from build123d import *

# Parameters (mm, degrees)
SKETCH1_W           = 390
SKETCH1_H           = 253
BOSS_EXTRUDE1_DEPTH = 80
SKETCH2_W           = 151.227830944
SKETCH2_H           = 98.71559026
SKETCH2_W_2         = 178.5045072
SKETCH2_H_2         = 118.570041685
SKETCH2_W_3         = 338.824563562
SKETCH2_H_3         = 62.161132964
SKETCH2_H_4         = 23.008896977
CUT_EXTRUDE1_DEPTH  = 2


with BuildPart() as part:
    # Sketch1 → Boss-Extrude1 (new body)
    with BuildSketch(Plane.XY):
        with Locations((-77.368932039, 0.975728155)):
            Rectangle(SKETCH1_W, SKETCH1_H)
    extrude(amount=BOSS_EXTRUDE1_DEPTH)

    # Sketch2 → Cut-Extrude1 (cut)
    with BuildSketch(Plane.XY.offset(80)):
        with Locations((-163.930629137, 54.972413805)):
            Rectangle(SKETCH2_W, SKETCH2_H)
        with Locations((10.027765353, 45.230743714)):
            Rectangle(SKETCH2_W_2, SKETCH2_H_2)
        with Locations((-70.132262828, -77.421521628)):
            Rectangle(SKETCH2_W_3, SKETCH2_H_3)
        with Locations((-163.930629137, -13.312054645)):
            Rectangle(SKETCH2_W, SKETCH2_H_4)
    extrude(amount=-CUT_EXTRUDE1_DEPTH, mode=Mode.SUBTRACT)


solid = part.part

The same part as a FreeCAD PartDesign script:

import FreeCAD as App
import Part
import Sketcher
Q = App.Units.Quantity

doc = App.newDocument("Part")
params = doc.addObject("Spreadsheet::Sheet", "Params")
for row, (alias, value) in enumerate([
    ("sketch1_width", "390 mm"),
    ("sketch1_height", "253 mm"),
    ("pad1_length", "80 mm"),
    ("pocket1_length", "2 mm"),
], start=1):
    params.set(f"A{row}", alias)
    params.set(f"B{row}", "=" + value)
    params.setAlias(f"B{row}", alias)

body = doc.addObject("PartDesign::Body", "Body")

# Sketch on XY plane
sketch1 = body.newObject("Sketcher::SketchObject", "Sketch")
sketch1.AttachmentSupport = (doc.getObject("XY_Plane"), [""])
sketch1.MapMode = "FlatFace"
sketch1.addGeometry([
    Part.LineSegment(App.Vector(-272, 127, 0), App.Vector(-272, -126, 0)),
    Part.LineSegment(App.Vector(-272, -126, 0), App.Vector(118, -126, 0)),
    Part.LineSegment(App.Vector(118, -126, 0), App.Vector(118, 127, 0)),
    Part.LineSegment(App.Vector(118, 127, 0), App.Vector(-272, 127, 0)),
], False)
sketch1.addConstraint([
    Sketcher.Constraint("Coincident", 0, 2, 1, 1),
    Sketcher.Constraint("Coincident", 1, 2, 2, 1),
    Sketcher.Constraint("Coincident", 2, 2, 3, 1),
    Sketcher.Constraint("Coincident", 3, 2, 0, 1),
    Sketcher.Constraint("Vertical", 0),
    Sketcher.Constraint("Horizontal", 1),
    Sketcher.Constraint("Vertical", 2),
    Sketcher.Constraint("Horizontal", 3),
    Sketcher.Constraint("DistanceX", 1, 1, 1, 2, Q("390 mm")),
    Sketcher.Constraint("DistanceY", 0, 2, 0, 1, Q("253 mm")),
    Sketcher.Constraint("DistanceY", 0, 2, -1, 1, Q("125.524272 mm")),
    Sketcher.Constraint("DistanceX", 0, 2, -1, 1, Q("272.368932 mm")),
])
sketch1.setExpression("Constraints[8]", "Params.sketch1_width")
sketch1.setExpression("Constraints[9]", "Params.sketch1_height")
pad1 = body.newObject("PartDesign::Pad", "Pad")
pad1.Profile = sketch1
pad1.setExpression("Length", "Params.pad1_length")

# Sketch on XY plane
sketch2 = body.newObject("Sketcher::SketchObject", "Sketch001")
sketch2.AttachmentSupport = (doc.getObject("XY_Plane"), [""])
sketch2.MapMode = "FlatFace"
sketch2.AttachmentOffset = App.Placement(App.Vector(0, 0, 80), App.Rotation())
sketch2.addGeometry([
    Part.LineSegment(App.Vector(-240, 104, 0), App.Vector(-240, 6, 0)),  # 0
    Part.LineSegment(App.Vector(-240, 6, 0), App.Vector(-88, 6, 0)),  # 1
    Part.LineSegment(App.Vector(-88, 6, 0), App.Vector(-88, 104, 0)),  # 2
    Part.LineSegment(App.Vector(-88, 104, 0), App.Vector(-240, 104, 0)),  # 3
    Part.LineSegment(App.Vector(-79, 105, 0), App.Vector(-79, -14, 0)),  # 4
    Part.LineSegment(App.Vector(-79, -14, 0), App.Vector(99, -14, 0)),  # 5
    Part.LineSegment(App.Vector(99, -14, 0), App.Vector(99, 105, 0)),  # 6
    Part.LineSegment(App.Vector(99, 105, 0), App.Vector(-79, 105, 0)),  # 7
    Part.LineSegment(App.Vector(-240, -46, 0), App.Vector(-240, -109, 0)),  # 8
    Part.LineSegment(App.Vector(-240, -109, 0), App.Vector(99, -109, 0)),  # 9
    Part.LineSegment(App.Vector(99, -109, 0), App.Vector(99, -46, 0)),  # 10
    Part.LineSegment(App.Vector(99, -46, 0), App.Vector(-240, -46, 0)),  # 11
    Part.LineSegment(App.Vector(-240, -2, 0), App.Vector(-240, -25, 0)),  # 12
    Part.LineSegment(App.Vector(-240, -25, 0), App.Vector(-88, -25, 0)),  # 13
    Part.LineSegment(App.Vector(-88, -25, 0), App.Vector(-88, -2, 0)),  # 14
    Part.LineSegment(App.Vector(-88, -2, 0), App.Vector(-240, -2, 0)),  # 15
], False)
sketch2.addConstraint([
    Sketcher.Constraint("Coincident", 0, 2, 1, 1),
    Sketcher.Constraint("Coincident", 1, 2, 2, 1),
    Sketcher.Constraint("Coincident", 2, 2, 3, 1),
    Sketcher.Constraint("Coincident", 3, 2, 0, 1),
    Sketcher.Constraint("Coincident", 4, 2, 5, 1),
    Sketcher.Constraint("Coincident", 5, 2, 6, 1),
    Sketcher.Constraint("Coincident", 6, 2, 7, 1),
    Sketcher.Constraint("Coincident", 7, 2, 4, 1),
    Sketcher.Constraint("Coincident", 8, 2, 9, 1),
    Sketcher.Constraint("Coincident", 9, 2, 10, 1),
    Sketcher.Constraint("Coincident", 10, 2, 11, 1),
    Sketcher.Constraint("Coincident", 11, 2, 8, 1),
    Sketcher.Constraint("Coincident", 12, 2, 13, 1),
    Sketcher.Constraint("Coincident", 13, 2, 14, 1),
    Sketcher.Constraint("Coincident", 14, 2, 15, 1),
    Sketcher.Constraint("Coincident", 15, 2, 12, 1),
    Sketcher.Constraint("Vertical", 0),
    Sketcher.Constraint("Horizontal", 1),
    Sketcher.Constraint("Vertical", 2),
    Sketcher.Constraint("Horizontal", 3),
    Sketcher.Constraint("Vertical", 4),
    Sketcher.Constraint("Horizontal", 5),
    Sketcher.Constraint("Vertical", 6),
    Sketcher.Constraint("Horizontal", 7),
    Sketcher.Constraint("Vertical", 8),
    Sketcher.Constraint("Horizontal", 9),
    Sketcher.Constraint("Vertical", 10),
    Sketcher.Constraint("Horizontal", 11),
    Sketcher.Constraint("Vertical", 12),
    Sketcher.Constraint("Horizontal", 13),
    Sketcher.Constraint("Vertical", 14),
    Sketcher.Constraint("Horizontal", 15),
    Sketcher.Constraint("Vertical", 3, 2, 8, 2),
    Sketcher.Constraint("Vertical", 6, 2, 9, 2),
    Sketcher.Constraint("Vertical", 11, 2, 12, 2),
    Sketcher.Constraint("Vertical", 2, 2, 13, 2),
    Sketcher.Constraint("DistanceX", 1, 1, 1, 2, Q("151.227831 mm")),
    Sketcher.Constraint("DistanceY", 0, 2, 0, 1, Q("98.71559 mm")),
    Sketcher.Constraint("DistanceY", 4, 2, 4, 1, Q("118.570042 mm")),
    Sketcher.Constraint("DistanceX", 5, 1, 5, 2, Q("178.504507 mm")),
    Sketcher.Constraint("DistanceX", 9, 1, 9, 2, Q("338.824564 mm")),
    Sketcher.Constraint("DistanceY", 8, 2, 8, 1, Q("62.161133 mm")),
    Sketcher.Constraint("DistanceY", 12, 2, 12, 1, Q("23.008897 mm")),
    Sketcher.Constraint("DistanceY", -1, 1, 0, 2, Q("5.614619 mm")),
    Sketcher.Constraint("DistanceX", 4, 2, -1, 1, Q("79.224488 mm")),
    Sketcher.Constraint("DistanceY", 8, 2, -1, 1, Q("108.502088 mm")),
    Sketcher.Constraint("DistanceY", 8, 2, 4, 2, Q("94.447811 mm")),
    Sketcher.Constraint("DistanceY", 12, 2, 0, 2, Q("30.431122 mm")),
])
pocket1 = body.newObject("PartDesign::Pocket", "Pocket")
pocket1.Profile = sketch2
pocket1.setExpression("Length", "Params.pocket1_length")

doc.recompute()
